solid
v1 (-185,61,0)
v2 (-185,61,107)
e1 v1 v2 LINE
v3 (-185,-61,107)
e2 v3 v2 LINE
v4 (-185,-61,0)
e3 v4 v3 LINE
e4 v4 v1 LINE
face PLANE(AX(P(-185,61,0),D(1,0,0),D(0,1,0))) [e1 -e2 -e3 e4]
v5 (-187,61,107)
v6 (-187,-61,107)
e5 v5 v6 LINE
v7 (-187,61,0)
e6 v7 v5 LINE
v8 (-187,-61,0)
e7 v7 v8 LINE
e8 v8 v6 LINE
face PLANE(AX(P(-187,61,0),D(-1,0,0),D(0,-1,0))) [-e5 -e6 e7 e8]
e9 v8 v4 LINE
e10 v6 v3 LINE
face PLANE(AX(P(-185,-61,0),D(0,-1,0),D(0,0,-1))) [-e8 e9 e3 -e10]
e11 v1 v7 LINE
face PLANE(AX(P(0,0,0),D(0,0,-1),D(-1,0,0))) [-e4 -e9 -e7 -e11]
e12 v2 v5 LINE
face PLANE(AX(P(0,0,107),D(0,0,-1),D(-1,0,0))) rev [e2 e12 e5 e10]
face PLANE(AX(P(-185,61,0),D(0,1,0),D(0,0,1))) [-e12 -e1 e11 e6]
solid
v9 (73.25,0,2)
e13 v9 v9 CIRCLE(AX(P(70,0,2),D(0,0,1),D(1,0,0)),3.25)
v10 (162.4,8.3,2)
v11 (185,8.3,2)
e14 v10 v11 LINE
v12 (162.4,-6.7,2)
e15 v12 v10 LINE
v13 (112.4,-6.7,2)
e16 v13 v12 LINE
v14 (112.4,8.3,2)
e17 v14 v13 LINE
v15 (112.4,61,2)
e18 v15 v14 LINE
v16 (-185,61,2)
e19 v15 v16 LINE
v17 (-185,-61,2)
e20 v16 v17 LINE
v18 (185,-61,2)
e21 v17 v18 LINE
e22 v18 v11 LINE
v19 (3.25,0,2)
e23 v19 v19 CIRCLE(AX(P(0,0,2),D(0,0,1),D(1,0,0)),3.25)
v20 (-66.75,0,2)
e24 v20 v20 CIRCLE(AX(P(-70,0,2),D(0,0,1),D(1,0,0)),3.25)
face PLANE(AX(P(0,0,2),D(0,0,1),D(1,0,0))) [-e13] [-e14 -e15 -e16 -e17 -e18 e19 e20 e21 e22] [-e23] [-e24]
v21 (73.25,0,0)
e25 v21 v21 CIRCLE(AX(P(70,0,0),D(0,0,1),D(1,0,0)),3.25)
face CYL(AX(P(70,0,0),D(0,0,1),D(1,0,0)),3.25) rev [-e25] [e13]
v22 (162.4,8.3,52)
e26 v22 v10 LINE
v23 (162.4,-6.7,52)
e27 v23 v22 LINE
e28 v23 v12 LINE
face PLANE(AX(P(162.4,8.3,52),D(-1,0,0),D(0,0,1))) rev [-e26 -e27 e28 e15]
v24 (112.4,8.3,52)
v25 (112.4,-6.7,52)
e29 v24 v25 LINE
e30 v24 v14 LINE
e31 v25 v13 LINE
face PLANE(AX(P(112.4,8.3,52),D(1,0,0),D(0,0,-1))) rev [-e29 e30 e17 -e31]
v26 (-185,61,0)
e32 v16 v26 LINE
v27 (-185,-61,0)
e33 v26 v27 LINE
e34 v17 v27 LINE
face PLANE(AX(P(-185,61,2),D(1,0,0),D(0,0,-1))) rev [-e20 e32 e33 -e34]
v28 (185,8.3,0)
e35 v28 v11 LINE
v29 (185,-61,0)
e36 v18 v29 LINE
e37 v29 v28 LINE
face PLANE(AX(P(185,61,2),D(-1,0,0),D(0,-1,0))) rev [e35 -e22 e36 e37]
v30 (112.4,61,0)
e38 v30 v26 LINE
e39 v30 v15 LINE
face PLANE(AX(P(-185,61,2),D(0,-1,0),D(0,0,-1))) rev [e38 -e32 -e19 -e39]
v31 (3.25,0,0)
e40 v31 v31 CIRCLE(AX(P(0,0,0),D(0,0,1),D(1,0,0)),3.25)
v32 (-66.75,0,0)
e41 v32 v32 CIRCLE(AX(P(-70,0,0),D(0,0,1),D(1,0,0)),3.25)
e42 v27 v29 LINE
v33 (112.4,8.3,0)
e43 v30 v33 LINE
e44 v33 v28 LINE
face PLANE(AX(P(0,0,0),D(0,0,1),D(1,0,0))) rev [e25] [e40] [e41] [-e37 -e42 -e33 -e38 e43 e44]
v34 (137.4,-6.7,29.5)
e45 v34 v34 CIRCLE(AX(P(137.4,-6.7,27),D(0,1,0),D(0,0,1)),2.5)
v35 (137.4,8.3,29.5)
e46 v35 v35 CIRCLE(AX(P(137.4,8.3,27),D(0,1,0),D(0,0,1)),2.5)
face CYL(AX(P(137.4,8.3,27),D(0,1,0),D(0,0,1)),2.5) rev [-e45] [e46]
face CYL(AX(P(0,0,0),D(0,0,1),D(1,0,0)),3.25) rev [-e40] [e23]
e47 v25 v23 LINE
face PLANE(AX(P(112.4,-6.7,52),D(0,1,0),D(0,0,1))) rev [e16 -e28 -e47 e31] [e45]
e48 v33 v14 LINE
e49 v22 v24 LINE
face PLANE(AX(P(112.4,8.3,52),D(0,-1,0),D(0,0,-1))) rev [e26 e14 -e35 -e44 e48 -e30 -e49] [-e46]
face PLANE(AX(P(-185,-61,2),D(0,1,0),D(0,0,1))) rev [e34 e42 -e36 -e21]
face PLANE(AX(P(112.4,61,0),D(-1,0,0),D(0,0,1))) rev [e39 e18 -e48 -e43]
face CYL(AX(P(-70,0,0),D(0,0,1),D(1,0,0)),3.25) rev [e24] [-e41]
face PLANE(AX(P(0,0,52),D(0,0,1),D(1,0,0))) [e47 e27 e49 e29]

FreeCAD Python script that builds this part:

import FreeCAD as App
import Part
import Sketcher
from FreeCAD import Vector
Q = App.Units.Quantity

doc = App.newDocument("Part")
body = doc.addObject("PartDesign::Body", "Body")

sketch1 = body.newObject("Sketcher::SketchObject", "Sketch")
sketch1.AttachmentSupport = (doc.getObject("XY_Plane"), [""])
sketch1.MapMode = "FlatFace"
sketch1.addGeometry([
    Part.LineSegment(Vector(-185, 61, 0), Vector(-185, -61, 0)),
    Part.LineSegment(Vector(-185, -61, 0), Vector(185, -61, 0)),
    Part.LineSegment(Vector(185, -61, 0), Vector(185, 61, 0)),
    Part.LineSegment(Vector(185, 61, 0), Vector(-185, 61, 0)),
], False)
sketch1.addConstraint([
    Sketcher.Constraint("Coincident", 0, 2, 1, 1),
    Sketcher.Constraint("Coincident", 1, 2, 2, 1),
    Sketcher.Constraint("Coincident", 2, 2, 3, 1),
    Sketcher.Constraint("Coincident", 3, 2, 0, 1),
    Sketcher.Constraint("Vertical", 0),
    Sketcher.Constraint("Horizontal", 1),
    Sketcher.Constraint("Vertical", 2),
    Sketcher.Constraint("Horizontal", 3),
    Sketcher.Constraint("Symmetric", 0, 2, 2, 2, -1, 1),
    Sketcher.Constraint("DistanceX", 1, 1, 1, 2, Q("370 mm")),
    Sketcher.Constraint("DistanceY", 0, 2, 0, 1, Q("122 mm")),
])
pad1 = body.newObject("PartDesign::Pad", "Pad")
pad1.Profile = sketch1
pad1.Length = 2

sketch2 = body.newObject("Sketcher::SketchObject", "Sketch001")
sketch2.AttachmentSupport = (doc.getObject("XY_Plane"), [""])
sketch2.MapMode = "FlatFace"
sketch2.AttachmentOffset = App.Placement(Vector(0, 0, 2), App.Rotation())
sketch2.addGeometry([
    Part.LineSegment(Vector(112, 8, 0), Vector(112, -7, 0)),
    Part.LineSegment(Vector(112, -7, 0), Vector(162, -7, 0)),
    Part.LineSegment(Vector(162, -7, 0), Vector(162, 8, 0)),
    Part.LineSegment(Vector(162, 8, 0), Vector(112, 8, 0)),
], False)
sketch2.addConstraint([
    Sketcher.Constraint("Coincident", 0, 2, 1, 1),
    Sketcher.Constraint("Coincident", 1, 2, 2, 1),
    Sketcher.Constraint("Coincident", 2, 2, 3, 1),
    Sketcher.Constraint("Coincident", 3, 2, 0, 1),
    Sketcher.Constraint("Vertical", 0),
    Sketcher.Constraint("Horizontal", 1),
    Sketcher.Constraint("Vertical", 2),
    Sketcher.Constraint("Horizontal", 3),
    Sketcher.Constraint("DistanceX", 1, 1, 1, 2, Q("50 mm")),
    Sketcher.Constraint("DistanceY", 0, 2, 0, 1, Q("15 mm")),
    Sketcher.Constraint("DistanceX", -1, 1, 0, 2, Q("112.4 mm")),
    Sketcher.Constraint("DistanceY", 0, 2, -1, 1, Q("6.7 mm")),
])
pad2 = body.newObject("PartDesign::Pad", "Pad001")
pad2.Profile = sketch2
pad2.Length = 50

sketch3 = body.newObject("Sketcher::SketchObject", "Sketch002")
sketch3.AttachmentSupport = (doc.getObject("YZ_Plane"), [""])
sketch3.MapMode = "FlatFace"
sketch3.AttachmentOffset = App.Placement(Vector(0, 0, 137.4), App.Rotation())
sketch3.addGeometry([
    Part.LineSegment(Vector(-6.7, 27, 0), Vector(8.3, 27, 0)),
    Part.LineSegment(Vector(8.3, 27, 0), Vector(8.3, 29.5, 0)),
    Part.LineSegment(Vector(8.3, 29.5, 0), Vector(-6.7, 29.5, 0)),
    Part.LineSegment(Vector(-6.7, 29.5, 0), Vector(-6.7, 27, 0)),
], False)
sketch3.addGeometry(Part.LineSegment(Vector(8.3, 27, 0), Vector(-6.7, 27, 0)), True)
sketch3.addConstraint([
    Sketcher.Constraint("Coincident", 0, 2, 1, 1),
    Sketcher.Constraint("Coincident", 1, 2, 2, 1),
    Sketcher.Constraint("Coincident", 2, 2, 3, 1),
    Sketcher.Constraint("Coincident", 3, 2, 0, 1),
    Sketcher.Constraint("Horizontal", 0),
    Sketcher.Constraint("Vertical", 1),
    Sketcher.Constraint("Horizontal", 2),
    Sketcher.Constraint("Vertical", 3),
    Sketcher.Constraint("Horizontal", 4),
    Sketcher.Constraint("Coincident", 4, 1, 0, 2),
    Sketcher.Constraint("Vertical", 2, 2, 4, 2),
    Sketcher.Constraint("DistanceY", 1, 1, 1, 2, Q("2.5 mm")),
    Sketcher.Constraint("DistanceY", -1, 1, 0, 2, Q("27 mm")),
    Sketcher.Constraint("DistanceX", -1, 1, 0, 2, Q("8.3 mm")),
    Sketcher.Constraint("DistanceX", 0, 1, 0, 2, Q("15.001 mm")),
])
groove = body.newObject("PartDesign::Groove", "Groove")
groove.Profile = sketch3
groove.ReferenceAxis = (sketch3, ["Axis0"])
groove.Angle = 360

sketch4 = body.newObject("Sketcher::SketchObject", "Sketch003")
sketch4.AttachmentSupport = (doc.getObject("XY_Plane"), [""])
sketch4.MapMode = "FlatFace"
sketch4.AttachmentOffset = App.Placement(Vector(0, 0, 2), App.Rotation())
sketch4.addGeometry([
    Part.LineSegment(Vector(112, 61, 0), Vector(112, 8, 0)),
    Part.LineSegment(Vector(112, 8, 0), Vector(185, 8, 0)),
    Part.LineSegment(Vector(185, 8, 0), Vector(185, 61, 0)),
    Part.LineSegment(Vector(185, 61, 0), Vector(112, 61, 0)),
], False)
sketch4.addConstraint([
    Sketcher.Constraint("Coincident", 0, 2, 1, 1),
    Sketcher.Constraint("Coincident", 1, 2, 2, 1),
    Sketcher.Constraint("Coincident", 2, 2, 3, 1),
    Sketcher.Constraint("Coincident", 3, 2, 0, 1),
    Sketcher.Constraint("Vertical", 0),
    Sketcher.Constraint("Horizontal", 1),
    Sketcher.Constraint("Vertical", 2),
    Sketcher.Constraint("Horizontal", 3),
    Sketcher.Constraint("DistanceX", 1, 1, 1, 2, Q("72.6 mm")),
    Sketcher.Constraint("DistanceY", 0, 2, 0, 1, Q("52.7 mm")),
    Sketcher.Constraint("DistanceX", -1, 1, 1, 2, Q("185 mm")),
    Sketcher.Constraint("DistanceY", -1, 1, 2, 2, Q("61 mm")),
])
pocket1 = body.newObject("PartDesign::Pocket", "Pocket")
pocket1.Profile = sketch4
pocket1.Length = 2

sketch5 = body.newObject("Sketcher::SketchObject", "Sketch004")
sketch5.AttachmentSupport = (doc.getObject("XY_Plane"), [""])
sketch5.MapMode = "FlatFace"
sketch5.AttachmentOffset = App.Placement(Vector(0, 0, 2), App.Rotation())
sketch5.addGeometry([
    Part.Circle(Vector(-70, 0, 0), Vector(0, 0, 1), 3.2),
    Part.Circle(Vector(0, 0, 0), Vector(0, 0, 1), 3.2),
    Part.Circle(Vector(70, 0, 0), Vector(0, 0, 1), 3.2),
], False)
sketch5.addConstraint([
    Sketcher.Constraint("Coincident", 1, 3, -1, 1),
    Sketcher.Constraint("Equal", 0, 1),
    Sketcher.Constraint("Equal", 1, 2),
    Sketcher.Constraint("Symmetric", 0, 3, 2, 3, -1, 1),
    Sketcher.Constraint("PointOnObject", 0, 3, -1),
    Sketcher.Constraint("Diameter", 0, Q("6.5 mm")),
    Sketcher.Constraint("DistanceX", 0, 3, -1, 1, Q("70 mm")),
])
pocket2 = body.newObject("PartDesign::Pocket", "Pocket001")
pocket2.Profile = sketch5
pocket2.Length = 2
body2 = doc.addObject("PartDesign::Body", "Body001")

sketch6 = body2.newObject("Sketcher::SketchObject", "Sketch005")
sketch6.AttachmentSupport = (doc.getObject("XY_Plane001"), [""])
sketch6.MapMode = "FlatFace"
sketch6.AttachmentOffset = App.Placement(Vector(0, 0, 2), App.Rotation())
sketch6.addGeometry([
    Part.LineSegment(Vector(-187, 61, 0), Vector(-187, -61, 0)),
    Part.LineSegment(Vector(-187, -61, 0), Vector(-185, -61, 0)),
    Part.LineSegment(Vector(-185, -61, 0), Vector(-185, 61, 0)),
    Part.LineSegment(Vector(-185, 61, 0), Vector(-187, 61, 0)),
], False)
sketch6.addConstraint([
    Sketcher.Constraint("Coincident", 0, 2, 1, 1),
    Sketcher.Constraint("Coincident", 1, 2, 2, 1),
    Sketcher.Constraint("Coincident", 2, 2, 3, 1),
    Sketcher.Constraint("Coincident", 3, 2, 0, 1),
    Sketcher.Constraint("Vertical", 0),
    Sketcher.Constraint("Horizontal", 1),
    Sketcher.Constraint("Vertical", 2),
    Sketcher.Constraint("Horizontal", 3),
    Sketcher.Constraint("DistanceX", 1, 1, 1, 2, Q("2 mm")),
    Sketcher.Constraint("DistanceY", 0, 2, 0, 1, Q("122 mm")),
    Sketcher.Constraint("DistanceX", 0, 2, -1, 1, Q("187 mm")),
    Sketcher.Constraint("DistanceY", 0, 2, -1, 1, Q("61 mm")),
])
pad3 = body2.newObject("PartDesign::Pad", "Pad002")
pad3.Profile = sketch6
pad3.Type = "TwoLengths"
pad3.Length = 105
pad3.Length2 = 2

doc.recompute()
